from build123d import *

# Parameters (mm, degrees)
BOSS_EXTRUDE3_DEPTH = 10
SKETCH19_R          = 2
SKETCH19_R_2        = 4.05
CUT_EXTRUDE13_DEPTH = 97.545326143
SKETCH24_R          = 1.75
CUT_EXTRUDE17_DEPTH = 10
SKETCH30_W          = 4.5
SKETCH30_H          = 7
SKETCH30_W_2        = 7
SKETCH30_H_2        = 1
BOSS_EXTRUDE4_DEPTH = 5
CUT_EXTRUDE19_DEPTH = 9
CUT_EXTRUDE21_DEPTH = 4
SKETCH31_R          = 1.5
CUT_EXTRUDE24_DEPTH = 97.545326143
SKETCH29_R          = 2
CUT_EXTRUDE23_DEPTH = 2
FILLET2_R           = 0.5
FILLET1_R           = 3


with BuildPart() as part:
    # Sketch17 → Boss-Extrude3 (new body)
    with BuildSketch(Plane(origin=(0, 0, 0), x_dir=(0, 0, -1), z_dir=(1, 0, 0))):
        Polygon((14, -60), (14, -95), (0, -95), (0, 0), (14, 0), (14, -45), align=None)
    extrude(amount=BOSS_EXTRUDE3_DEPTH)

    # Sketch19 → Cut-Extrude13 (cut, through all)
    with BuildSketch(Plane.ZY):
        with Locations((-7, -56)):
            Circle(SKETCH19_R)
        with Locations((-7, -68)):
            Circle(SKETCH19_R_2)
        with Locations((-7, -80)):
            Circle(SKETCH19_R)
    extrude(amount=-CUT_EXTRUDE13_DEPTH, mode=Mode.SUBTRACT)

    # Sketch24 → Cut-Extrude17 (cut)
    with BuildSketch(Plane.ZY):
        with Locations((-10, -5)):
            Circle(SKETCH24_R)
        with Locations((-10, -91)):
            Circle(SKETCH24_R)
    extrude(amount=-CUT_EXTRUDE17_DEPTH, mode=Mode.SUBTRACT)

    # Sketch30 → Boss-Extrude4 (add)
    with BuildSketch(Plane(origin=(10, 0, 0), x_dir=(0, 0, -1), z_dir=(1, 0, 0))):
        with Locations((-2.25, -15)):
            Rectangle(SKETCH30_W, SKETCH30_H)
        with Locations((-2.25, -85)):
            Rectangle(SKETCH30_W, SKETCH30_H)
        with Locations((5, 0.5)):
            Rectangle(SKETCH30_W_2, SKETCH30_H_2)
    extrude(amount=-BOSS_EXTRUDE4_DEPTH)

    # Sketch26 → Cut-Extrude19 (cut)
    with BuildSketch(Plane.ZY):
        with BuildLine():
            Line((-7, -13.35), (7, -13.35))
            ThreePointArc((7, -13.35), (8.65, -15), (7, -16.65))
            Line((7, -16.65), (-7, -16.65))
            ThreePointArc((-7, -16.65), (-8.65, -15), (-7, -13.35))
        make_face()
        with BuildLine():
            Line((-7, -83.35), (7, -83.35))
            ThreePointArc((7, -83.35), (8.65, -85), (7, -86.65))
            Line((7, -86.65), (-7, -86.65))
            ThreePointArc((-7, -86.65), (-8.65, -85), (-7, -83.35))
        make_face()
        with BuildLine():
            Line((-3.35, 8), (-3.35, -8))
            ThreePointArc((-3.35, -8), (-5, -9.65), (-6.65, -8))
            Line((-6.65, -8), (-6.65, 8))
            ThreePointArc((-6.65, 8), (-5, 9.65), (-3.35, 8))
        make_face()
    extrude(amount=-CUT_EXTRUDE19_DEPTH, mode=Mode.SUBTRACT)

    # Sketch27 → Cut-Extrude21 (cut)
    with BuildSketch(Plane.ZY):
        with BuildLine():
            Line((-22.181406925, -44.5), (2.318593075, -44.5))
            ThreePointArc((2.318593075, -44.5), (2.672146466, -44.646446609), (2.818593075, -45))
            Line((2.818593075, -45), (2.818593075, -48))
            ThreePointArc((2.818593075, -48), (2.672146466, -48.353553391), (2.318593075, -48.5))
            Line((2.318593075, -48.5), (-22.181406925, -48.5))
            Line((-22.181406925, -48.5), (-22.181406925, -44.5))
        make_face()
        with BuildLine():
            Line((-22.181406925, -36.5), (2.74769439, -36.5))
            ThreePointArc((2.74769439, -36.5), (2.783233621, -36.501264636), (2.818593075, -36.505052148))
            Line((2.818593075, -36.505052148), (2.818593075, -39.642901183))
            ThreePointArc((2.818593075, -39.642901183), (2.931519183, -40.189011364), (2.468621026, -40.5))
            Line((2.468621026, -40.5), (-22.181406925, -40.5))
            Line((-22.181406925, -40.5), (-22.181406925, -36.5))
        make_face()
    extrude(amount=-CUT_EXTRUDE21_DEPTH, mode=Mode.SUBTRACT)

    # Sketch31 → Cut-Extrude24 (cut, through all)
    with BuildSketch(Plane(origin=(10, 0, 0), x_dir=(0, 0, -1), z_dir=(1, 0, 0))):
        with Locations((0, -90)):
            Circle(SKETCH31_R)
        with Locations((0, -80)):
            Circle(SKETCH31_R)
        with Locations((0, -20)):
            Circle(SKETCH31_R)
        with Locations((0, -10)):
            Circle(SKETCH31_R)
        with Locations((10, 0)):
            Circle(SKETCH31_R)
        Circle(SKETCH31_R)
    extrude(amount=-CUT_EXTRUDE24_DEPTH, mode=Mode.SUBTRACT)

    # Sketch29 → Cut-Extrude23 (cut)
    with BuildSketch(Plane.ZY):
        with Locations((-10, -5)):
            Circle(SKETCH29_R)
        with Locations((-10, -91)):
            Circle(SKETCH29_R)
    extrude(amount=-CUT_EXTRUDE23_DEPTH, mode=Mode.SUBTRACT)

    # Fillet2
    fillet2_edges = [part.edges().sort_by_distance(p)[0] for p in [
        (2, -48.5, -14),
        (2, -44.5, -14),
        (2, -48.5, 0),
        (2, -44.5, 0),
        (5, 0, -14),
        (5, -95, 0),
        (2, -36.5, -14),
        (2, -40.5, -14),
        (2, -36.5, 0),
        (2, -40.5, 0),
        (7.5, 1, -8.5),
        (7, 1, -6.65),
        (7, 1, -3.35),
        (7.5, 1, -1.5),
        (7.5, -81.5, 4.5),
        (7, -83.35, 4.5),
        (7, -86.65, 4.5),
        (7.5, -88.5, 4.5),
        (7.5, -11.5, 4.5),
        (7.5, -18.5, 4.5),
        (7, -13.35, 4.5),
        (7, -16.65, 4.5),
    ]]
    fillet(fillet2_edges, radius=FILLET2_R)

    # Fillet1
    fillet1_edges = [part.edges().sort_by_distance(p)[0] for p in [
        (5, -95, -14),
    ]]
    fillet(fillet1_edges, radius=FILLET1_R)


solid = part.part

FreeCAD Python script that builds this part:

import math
import FreeCAD as App
import Part
import Sketcher

V = App.Vector


def edges_at(feature, points):
    """Names of the edges that pass closest to the given points."""
    edges = feature.Shape.Edges
    near = lambda p: min(range(len(edges)), key=lambda i: edges[i].distToShape(Part.Vertex(*p))[0])
    return sorted({f"Edge{near(p) + 1}" for p in points})

doc = App.newDocument("Part")
body = doc.addObject("PartDesign::Body", "Body")

# Sketch on YZ plane
sketch1 = body.newObject("Sketcher::SketchObject", "Sketch")
sketch1.AttachmentSupport = (doc.getObject("YZ_Plane"), [""])
sketch1.MapMode = "FlatFace"
sketch1.addGeometry(Part.LineSegment(V(-95, -14, 0), V(0, -14, 0)), False)
sketch1.addGeometry(Part.LineSegment(V(0, -14, 0), V(0, 0, 0)), False)
sketch1.addGeometry(Part.LineSegment(V(0, 0, 0), V(-95, 0, 0)), False)
sketch1.addGeometry(Part.LineSegment(V(-95, 0, 0), V(-95, -14, 0)), False)
sketch1.addConstraint(Sketcher.Constraint("Coincident", 0, 2, 1, 1))
sketch1.addConstraint(Sketcher.Constraint("Coincident", 1, 2, 2, 1))
sketch1.addConstraint(Sketcher.Constraint("Coincident", 2, 2, 3, 1))
sketch1.addConstraint(Sketcher.Constraint("Coincident", 3, 2, 0, 1))
sketch1.addConstraint(Sketcher.Constraint("Horizontal", 0))
sketch1.addConstraint(Sketcher.Constraint("Vertical", 1))
sketch1.addConstraint(Sketcher.Constraint("Horizontal", 2))
sketch1.addConstraint(Sketcher.Constraint("Vertical", 3))
sketch1.addConstraint(Sketcher.Constraint("Coincident", 1, 2, -1, 1))
sketch1.addConstraint(Sketcher.Constraint("DistanceX", 0, 1, 0, 2, 95.0))
sketch1.addConstraint(Sketcher.Constraint("DistanceY", 1, 1, 1, 2, 14.0))
pad1 = body.newObject("PartDesign::Pad", "Pad")
pad1.Profile = sketch1
pad1.Length = 10

# Sketch on YZ plane
sketch2 = body.newObject("Sketcher::SketchObject", "Sketch001")
sketch2.AttachmentSupport = (doc.getObject("YZ_Plane"), [""])
sketch2.MapMode = "FlatFace"
sketch2.addGeometry(Part.Circle(V(-56, -7, 0), V(0, 0, 1), 2), False)
sketch2.addGeometry(Part.Circle(V(-68, -7, 0), V(0, 0, 1), 4.05), False)
sketch2.addGeometry(Part.Circle(V(-80, -7, 0), V(0, 0, 1), 2), False)
sketch2.addConstraint(Sketcher.Constraint("Equal", 0, 2))
sketch2.addConstraint(Sketcher.Constraint("Horizontal", 0, 3, 1, 3))
sketch2.addConstraint(Sketcher.Constraint("Horizontal", 1, 3, 2, 3))
sketch2.addConstraint(Sketcher.Constraint("Diameter", 0, 4.0))
sketch2.addConstraint(Sketcher.Constraint("Diameter", 1, 8.1))
sketch2.addConstraint(Sketcher.Constraint("DistanceX", 0, 3, -1, 1, 56.0))
sketch2.addConstraint(Sketcher.Constraint("DistanceY", 0, 3, -1, 1, 7.0))
sketch2.addConstraint(Sketcher.Constraint("DistanceX", 1, 3, -1, 1, 68.0))
sketch2.addConstraint(Sketcher.Constraint("DistanceX", 2, 3, -1, 1, 80.0))
pocket1 = body.newObject("PartDesign::Pocket", "Pocket")
pocket1.Profile = sketch2
pocket1.Type = "ThroughAll"
pocket1.Reversed = True

# Sketch on YZ plane
sketch3 = body.newObject("Sketcher::SketchObject", "Sketch002")
sketch3.AttachmentSupport = (doc.getObject("YZ_Plane"), [""])
sketch3.MapMode = "FlatFace"
sketch3.addGeometry(Part.Circle(V(-5, -10, 0), V(0, 0, 1), 1.75), False)
sketch3.addGeometry(Part.Circle(V(-91, -10, 0), V(0, 0, 1), 1.75), False)
sketch3.addConstraint(Sketcher.Constraint("Equal", 0, 1))
sketch3.addConstraint(Sketcher.Constraint("Horizontal", 0, 3, 1, 3))
sketch3.addConstraint(Sketcher.Constraint("Diameter", 0, 3.5))
sketch3.addConstraint(Sketcher.Constraint("DistanceX", 0, 3, -1, 1, 5.0))
sketch3.addConstraint(Sketcher.Constraint("DistanceY", 0, 3, -1, 1, 10.0))
sketch3.addConstraint(Sketcher.Constraint("DistanceX", 1, 3, -1, 1, 91.0))
pocket2 = body.newObject("PartDesign::Pocket", "Pocket001")
pocket2.Profile = sketch3
pocket2.Length = 10
pocket2.Reversed = True

# Sketch on YZ plane
sketch4 = body.newObject("Sketcher::SketchObject", "Sketch003")
sketch4.AttachmentSupport = (doc.getObject("YZ_Plane"), [""])
sketch4.MapMode = "FlatFace"
sketch4.AttachmentOffset = App.Placement(V(0, 0, 10), App.Rotation())
sketch4.addGeometry(Part.LineSegment(V(-11.5, 4.5, 0), V(-18.5, 4.5, 0)), False)
sketch4.addGeometry(Part.LineSegment(V(-18.5, 4.5, 0), V(-18.5, 0, 0)), False)
sketch4.addGeometry(Part.LineSegment(V(-18.5, 0, 0), V(-11.5, 0, 0)), False)
sketch4.addGeometry(Part.LineSegment(V(-11.5, 0, 0), V(-11.5, 4.5, 0)), False)
sketch4.addGeometry(Part.LineSegment(V(-81.5, 4.5, 0), V(-88.5, 4.5, 0)), False)
sketch4.addGeometry(Part.LineSegment(V(-88.5, 4.5, 0), V(-88.5, 0, 0)), False)
sketch4.addGeometry(Part.LineSegment(V(-88.5, 0, 0), V(-81.5, 0, 0)), False)
sketch4.addGeometry(Part.LineSegment(V(-81.5, 0, 0), V(-81.5, 4.5, 0)), False)
sketch4.addGeometry(Part.LineSegment(V(1, -1.5, 0), V(0, -1.5, 0)), False)
sketch4.addGeometry(Part.LineSegment(V(0, -1.5, 0), V(0, -8.5, 0)), False)
sketch4.addGeometry(Part.LineSegment(V(0, -8.5, 0), V(1, -8.5, 0)), False)
sketch4.addGeometry(Part.LineSegment(V(1, -8.5, 0), V(1, -1.5, 0)), False)
sketch4.addConstraint(Sketcher.Constraint("Coincident", 0, 2, 1, 1))
sketch4.addConstraint(Sketcher.Constraint("Coincident", 1, 2, 2, 1))
sketch4.addConstraint(Sketcher.Constraint("Coincident", 2, 2, 3, 1))
sketch4.addConstraint(Sketcher.Constraint("Coincident", 3, 2, 0, 1))
sketch4.addConstraint(Sketcher.Constraint("Coincident", 4, 2, 5, 1))
sketch4.addConstraint(Sketcher.Constraint("Coincident", 5, 2, 6, 1))
sketch4.addConstraint(Sketcher.Constraint("Coincident", 6, 2, 7, 1))
sketch4.addConstraint(Sketcher.Constraint("Coincident", 7, 2, 4, 1))
sketch4.addConstraint(Sketcher.Constraint("Coincident", 8, 2, 9, 1))
sketch4.addConstraint(Sketcher.Constraint("Coincident", 9, 2, 10, 1))
sketch4.addConstraint(Sketcher.Constraint("Coincident", 10, 2, 11, 1))
sketch4.addConstraint(Sketcher.Constraint("Coincident", 11, 2, 8, 1))
sketch4.addConstraint(Sketcher.Constraint("Horizontal", 0))
sketch4.addConstraint(Sketcher.Constraint("Vertical", 1))
sketch4.addConstraint(Sketcher.Constraint("Horizontal", 2))
sketch4.addConstraint(Sketcher.Constraint("Vertical", 3))
sketch4.addConstraint(Sketcher.Constraint("Horizontal", 4))
sketch4.addConstraint(Sketcher.Constraint("Vertical", 5))
sketch4.addConstraint(Sketcher.Constraint("Horizontal", 6))
sketch4.addConstraint(Sketcher.Constraint("Vertical", 7))
sketch4.addConstraint(Sketcher.Constraint("Horizontal", 8))
sketch4.addConstraint(Sketcher.Constraint("Vertical", 9))
sketch4.addConstraint(Sketcher.Constraint("Horizontal", 10))
sketch4.addConstraint(Sketcher.Constraint("Vertical", 11))
sketch4.addConstraint(Sketcher.Constraint("PointOnObject", 1, 2, -1))
sketch4.addConstraint(Sketcher.Constraint("PointOnObject", 5, 2, -1))
sketch4.addConstraint(Sketcher.Constraint("PointOnObject", 8, 2, -2))
sketch4.addConstraint(Sketcher.Constraint("Horizontal", 3, 2, 4, 2))
sketch4.addConstraint(Sketcher.Constraint("Equal", 2, 4))
sketch4.addConstraint(Sketcher.Constraint("Equal", 6, 9))
sketch4.addConstraint(Sketcher.Constraint("DistanceX", 0, 2, 0, 1, 7.0))
sketch4.addConstraint(Sketcher.Constraint("DistanceX", 8, 2, 8, 1, 1.0))
sketch4.addConstraint(Sketcher.Constraint("DistanceY", 1, 2, 1, 1, 4.5))
sketch4.addConstraint(Sketcher.Constraint("DistanceX", 4, 2, 0, 2, 70.0))
sketch4.addConstraint(Sketcher.Constraint("DistanceY", 8, 2, 3, 2, 6.0))
sketch4.addConstraint(Sketcher.Constraint("DistanceX", 0, 2, -1, 1, 18.5))
pad2 = body.newObject("PartDesign::Pad", "Pad001")
pad2.Profile = sketch4
pad2.Length = 5
pad2.Reversed = True

# Sketch on YZ plane
sketch5 = body.newObject("Sketcher::SketchObject", "Sketch004")
sketch5.AttachmentSupport = (doc.getObject("YZ_Plane"), [""])
sketch5.MapMode = "FlatFace"
sketch5.addGeometry(Part.LineSegment(V(-13.35, 7, 0), V(-13.35, -7, 0)), False)
sketch5.addGeometry(Part.ArcOfCircle(Part.Circle(V(-15, -7, 0), V(0, 0, 1), 1.65), math.radians(180), math.radians(360)), False)
sketch5.addGeometry(Part.LineSegment(V(-16.65, -7, 0), V(-16.65, 7, 0)), False)
sketch5.addGeometry(Part.ArcOfCircle(Part.Circle(V(-15, 7, 0), V(0, 0, 1), 1.65), math.radians(0), math.radians(180)), False)
sketch5.addGeometry(Part.LineSegment(V(-83.35, 7, 0), V(-83.35, -7, 0)), False)
sketch5.addGeometry(Part.ArcOfCircle(Part.Circle(V(-85, -7, 0), V(0, 0, 1), 1.65), math.radians(180), math.radians(360)), False)
sketch5.addGeometry(Part.LineSegment(V(-86.65, -7, 0), V(-86.65, 7, 0)), False)
sketch5.addGeometry(Part.ArcOfCircle(Part.Circle(V(-85, 7, 0), V(0, 0, 1), 1.65), math.radians(0), math.radians(180)), False)
sketch5.addGeometry(Part.LineSegment(V(-8, -3.35, 0), V(8, -3.35, 0)), False)
sketch5.addGeometry(Part.ArcOfCircle(Part.Circle(V(8, -5, 0), V(0, 0, 1), 1.65), math.radians(-90), math.radians(90)), False)
sketch5.addGeometry(Part.LineSegment(V(8, -6.65, 0), V(-8, -6.65, 0)), False)
sketch5.addGeometry(Part.ArcOfCircle(Part.Circle(V(-8, -5, 0), V(0, 0, 1), 1.65), math.radians(90), math.radians(270)), False)
sketch5.addConstraint(Sketcher.Constraint("Tangent", 0, 2, 1, 2))
sketch5.addConstraint(Sketcher.Constraint("Tangent", 1, 1, 2, 1))
sketch5.addConstraint(Sketcher.Constraint("Tangent", 2, 2, 3, 2))
sketch5.addConstraint(Sketcher.Constraint("Tangent", 3, 1, 0, 1))
sketch5.addConstraint(Sketcher.Constraint("Tangent", 4, 2, 5, 2))
sketch5.addConstraint(Sketcher.Constraint("Tangent", 5, 1, 6, 1))
sketch5.addConstraint(Sketcher.Constraint("Tangent", 6, 2, 7, 2))
sketch5.addConstraint(Sketcher.Constraint("Tangent", 7, 1, 4, 1))
sketch5.addConstraint(Sketcher.Constraint("Tangent", 8, 2, 9, 2))
sketch5.addConstraint(Sketcher.Constraint("Tangent", 9, 1, 10, 1))
sketch5.addConstraint(Sketcher.Constraint("Tangent", 10, 2, 11, 2))
sketch5.addConstraint(Sketcher.Constraint("Tangent", 11, 1, 8, 1))
sketch5.addConstraint(Sketcher.Constraint("Vertical", 0))
sketch5.addConstraint(Sketcher.Constraint("Vertical", 2))
sketch5.addConstraint(Sketcher.Constraint("Vertical", 4))
sketch5.addConstraint(Sketcher.Constraint("Vertical", 6))
sketch5.addConstraint(Sketcher.Constraint("Horizontal", 8))
sketch5.addConstraint(Sketcher.Constraint("Horizontal", 10))
sketch5.addConstraint(Sketcher.Constraint("Equal", 3, 5))
sketch5.addConstraint(Sketcher.Constraint("Equal", 7, 9))
sketch5.addConstraint(Sketcher.Constraint("Horizontal", 1, 3, 5, 3))
sketch5.addConstraint(Sketcher.Constraint("Horizontal", 3, 3, 7, 3))
sketch5.addConstraint(Sketcher.Constraint("DistanceX", 8, 1, 8, 2, 16.0))
sketch5.addConstraint(Sketcher.Constraint("DistanceY", 0, 2, 0, 1, 14.0))
sketch5.addConstraint(Sketcher.Constraint("Radius", 1, 1.65))
sketch5.addConstraint(Sketcher.Constraint("DistanceX", 1, 3, -1, 1, 15.0))
sketch5.addConstraint(Sketcher.Constraint("DistanceY", 1, 3, -1, 1, 7.0))
sketch5.addConstraint(Sketcher.Constraint("DistanceX", 5, 3, -1, 1, 85.0))
sketch5.addConstraint(Sketcher.Constraint("DistanceX", -1, 1, 9, 3, 8.0))
sketch5.addConstraint(Sketcher.Constraint("DistanceY", 9, 3, -1, 1, 5.0))
pocket3 = body.newObject("PartDesign::Pocket", "Pocket002")
pocket3.Profile = sketch5
pocket3.Length = 9
pocket3.Reversed = True

# Sketch on YZ plane
sketch6 = body.newObject("Sketcher::SketchObject", "Sketch005")
sketch6.AttachmentSupport = (doc.getObject("YZ_Plane"), [""])
sketch6.MapMode = "FlatFace"
sketch6.addGeometry(Part.LineSegment(V(-44.5, 2.318593, 0), V(-44.5, -22.181407, 0)), False)
sketch6.addGeometry(Part.LineSegment(V(-44.5, -22.181407, 0), V(-48.5, -22.181407, 0)), False)
sketch6.addGeometry(Part.LineSegment(V(-48.5, -22.181407, 0), V(-48.5, 2.318593, 0)), False)
sketch6.addGeometry(Part.ArcOfCircle(Part.Circle(V(-48, 2.318593, 0), V(0, 0, 1), 0.5), math.radians(90), math.radians(180)), False)
sketch6.addGeometry(Part.LineSegment(V(-48, 2.818593, 0), V(-45, 2.818593, 0)), False)
sketch6.addGeometry(Part.ArcOfCircle(Part.Circle(V(-45, 2.318593, 0), V(0, 0, 1), 0.5), math.radians(0), math.radians(90)), False)
sketch6.addGeometry(Part.LineSegment(V(-36.5, 2.747694, 0), V(-36.5, -22.181407, 0)), False)
sketch6.addGeometry(Part.LineSegment(V(-36.5, -22.181407, 0), V(-40.5, -22.181407, 0)), False)
sketch6.addGeometry(Part.LineSegment(V(-40.5, -22.181407, 0), V(-40.5, 2.468621, 0)), False)
sketch6.addGeometry(Part.ArcOfCircle(Part.Circle(V(-40, 2.468621, 0), V(0, 0, 1), 0.5), math.radians(44.422519), math.radians(180)), False)
sketch6.addGeometry(Part.LineSegment(V(-39.642901, 2.818593, 0), V(-36.505052, 2.818593, 0)), False)
sketch6.addGeometry(Part.ArcOfCircle(Part.Circle(V(-37, 2.747694, 0), V(0, 0, 1), 0.5), math.radians(-0.000001), math.radians(8.151867)), False)
sketch6.addConstraint(Sketcher.Constraint("Coincident", 0, 2, 1, 1))
sketch6.addConstraint(Sketcher.Constraint("Coincident", 1, 2, 2, 1))
sketch6.addConstraint(Sketcher.Constraint("Tangent", 2, 2, 3, 2))
sketch6.addConstraint(Sketcher.Constraint("Tangent", 3, 1, 4, 1))
sketch6.addConstraint(Sketcher.Constraint("Tangent", 4, 2, 5, 2))
sketch6.addConstraint(Sketcher.Constraint("Tangent", 5, 1, 0, 1))
sketch6.addConstraint(Sketcher.Constraint("Coincident", 6, 2, 7, 1))
sketch6.addConstraint(Sketcher.Constraint("Coincident", 7, 2, 8, 1))
sketch6.addConstraint(Sketcher.Constraint("Tangent", 8, 2, 9, 2))
sketch6.addConstraint(Sketcher.Constraint("Coincident", 9, 1, 10, 1))
sketch6.addConstraint(Sketcher.Constraint("Coincident", 10, 2, 11, 2))
sketch6.addConstraint(Sketcher.Constraint("Tangent", 11, 1, 6, 1))
sketch6.addConstraint(Sketcher.Constraint("Vertical", 0))
sketch6.addConstraint(Sketcher.Constraint("Horizontal", 1))
sketch6.addConstraint(Sketcher.Constraint("Vertical", 2))
sketch6.addConstraint(Sketcher.Constraint("Horizontal", 4))
sketch6.addConstraint(Sketcher.Constraint("Vertical", 6))
sketch6.addConstraint(Sketcher.Constraint("Horizontal", 7))
sketch6.addConstraint(Sketcher.Constraint("Vertical", 8))
sketch6.addConstraint(Sketcher.Constraint("Horizontal", 10))
sketch6.addConstraint(Sketcher.Constraint("Equal", 3, 5))
sketch6.addConstraint(Sketcher.Constraint("Equal", 5, 9))
sketch6.addConstraint(Sketcher.Constraint("Equal", 9, 11))
sketch6.addConstraint(Sketcher.Constraint("Horizontal", 1, 2, 6, 2))
sketch6.addConstraint(Sketcher.Constraint("Horizontal", 4, 2, 9, 1))
sketch6.addConstraint(Sketcher.Constraint("Equal", 1, 7))
sketch6.addConstraint(Sketcher.Constraint("Radius", 3, 0.5))
sketch6.addConstraint(Sketcher.Constraint("DistanceX", 1, 2, 1, 1, 4.0))
sketch6.addConstraint(Sketcher.Constraint("DistanceY", 0, 2, 0, 1, 24.5))
sketch6.addConstraint(Sketcher.Constraint("DistanceX", 3, 3, -1, 1, 48.0))
sketch6.addConstraint(Sketcher.Constraint("DistanceX", 9, 3, -1, 1, 40.0))
sketch6.addConstraint(Sketcher.Constraint("DistanceY", 6, 2, 6, 1, 24.929101))
sketch6.addConstraint(Sketcher.Constraint("DistanceX", 10, 1, 10, 2, 3.137849))
sketch6.addConstraint(Sketcher.Constraint("DistanceY", -1, 1, 9, 3, 2.468621))
pocket4 = body.newObject("PartDesign::Pocket", "Pocket003")
pocket4.Profile = sketch6
pocket4.Length = 4
pocket4.Reversed = True

# Sketch on YZ plane
sketch7 = body.newObject("Sketcher::SketchObject", "Sketch006")
sketch7.AttachmentSupport = (doc.getObject("YZ_Plane"), [""])
sketch7.MapMode = "FlatFace"
sketch7.AttachmentOffset = App.Placement(V(0, 0, 10), App.Rotation())
sketch7.addGeometry(Part.Circle(V(-90, 0, 0), V(0, 0, 1), 1.5), False)
sketch7.addGeometry(Part.Circle(V(-80, 0, 0), V(0, 0, 1), 1.5), False)
sketch7.addGeometry(Part.Circle(V(-20, 0, 0), V(0, 0, 1), 1.5), False)
sketch7.addGeometry(Part.Circle(V(-10, 0, 0), V(0, 0, 1), 1.5), False)
sketch7.addGeometry(Part.Circle(V(0, -10, 0), V(0, 0, 1), 1.5), False)
sketch7.addGeometry(Part.Circle(V(0, 0, 0), V(0, 0, 1), 1.5), False)
sketch7.addConstraint(Sketcher.Constraint("Coincident", 5, 3, -1, 1))
sketch7.addConstraint(Sketcher.Constraint("Equal", 0, 1))
sketch7.addConstraint(Sketcher.Constraint("Equal", 1, 2))
sketch7.addConstraint(Sketcher.Constraint("Equal", 2, 3))
sketch7.addConstraint(Sketcher.Constraint("Equal", 3, 4))
sketch7.addConstraint(Sketcher.Constraint("Equal", 4, 5))
sketch7.addConstraint(Sketcher.Constraint("PointOnObject", 0, 3, -1))
sketch7.addConstraint(Sketcher.Constraint("PointOnObject", 1, 3, -1))
sketch7.addConstraint(Sketcher.Constraint("PointOnObject", 2, 3, -1))
sketch7.addConstraint(Sketcher.Constraint("PointOnObject", 3, 3, -1))
sketch7.addConstraint(Sketcher.Constraint("PointOnObject", 4, 3, -2))
sketch7.addConstraint(Sketcher.Constraint("Diameter", 0, 3.0))
sketch7.addConstraint(Sketcher.Constraint("DistanceX", 0, 3, -1, 1, 90.0))
sketch7.addConstraint(Sketcher.Constraint("DistanceX", 1, 3, -1, 1, 80.0))
sketch7.addConstraint(Sketcher.Constraint("DistanceX", 2, 3, -1, 1, 20.0))
sketch7.addConstraint(Sketcher.Constraint("DistanceX", 3, 3, -1, 1, 10.0))
sketch7.addConstraint(Sketcher.Constraint("DistanceY", 4, 3, -1, 1, 10.0))
pocket5 = body.newObject("PartDesign::Pocket", "Pocket004")
pocket5.Profile = sketch7
pocket5.Type = "ThroughAll"

# Sketch on YZ plane
sketch8 = body.newObject("Sketcher::SketchObject", "Sketch007")
sketch8.AttachmentSupport = (doc.getObject("YZ_Plane"), [""])
sketch8.MapMode = "FlatFace"
sketch8.addGeometry(Part.Circle(V(-5, -10, 0), V(0, 0, 1), 2), False)
sketch8.addGeometry(Part.Circle(V(-91, -10, 0), V(0, 0, 1), 2), False)
sketch8.addConstraint(Sketcher.Constraint("Equal", 0, 1))
sketch8.addConstraint(Sketcher.Constraint("Horizontal", 0, 3, 1, 3))
sketch8.addConstraint(Sketcher.Constraint("Diameter", 0, 4.0))
sketch8.addConstraint(Sketcher.Constraint("DistanceX", 0, 3, -1, 1, 5.0))
sketch8.addConstraint(Sketcher.Constraint("DistanceY", 0, 3, -1, 1, 10.0))
sketch8.addConstraint(Sketcher.Constraint("DistanceX", 1, 3, -1, 1, 91.0))
pocket6 = body.newObject("PartDesign::Pocket", "Pocket005")
pocket6.Profile = sketch8
pocket6.Length = 2
pocket6.Reversed = True
doc.recompute()

fillet = body.newObject("PartDesign::Fillet", "Fillet")
fillet.Base = (pocket6, edges_at(pocket6, [
    (2, -48.5, -14),
    (2, -44.5, -14),
    (2, -48.5, 0),
    (2, -44.5, 0),
    (5, 0, -14),
    (5, -95, 0),
    (2, -36.5, -14),
    (2, -40.5, -14),
    (2, -36.5, 0),
    (2, -40.5, 0),
    (7.5, 1, -8.5),
    (7, 1, -6.65),
    (7, 1, -3.35),
    (7.5, 1, -1.5),
    (7.5, -81.5, 4.5),
    (7, -83.35, 4.5),
    (7, -86.65, 4.5),
    (7.5, -88.5, 4.5),
    (7.5, -11.5, 4.5),
    (7.5, -18.5, 4.5),
    (7, -13.35, 4.5),
    (7, -16.65, 4.5),
]))
fillet.Radius = 0.5
doc.recompute()

fillet2 = body.newObject("PartDesign::Fillet", "Fillet001")
fillet2.Base = (fillet, edges_at(fillet, [(5, -95, -14)]))
fillet2.Radius = 3

doc.recompute()
